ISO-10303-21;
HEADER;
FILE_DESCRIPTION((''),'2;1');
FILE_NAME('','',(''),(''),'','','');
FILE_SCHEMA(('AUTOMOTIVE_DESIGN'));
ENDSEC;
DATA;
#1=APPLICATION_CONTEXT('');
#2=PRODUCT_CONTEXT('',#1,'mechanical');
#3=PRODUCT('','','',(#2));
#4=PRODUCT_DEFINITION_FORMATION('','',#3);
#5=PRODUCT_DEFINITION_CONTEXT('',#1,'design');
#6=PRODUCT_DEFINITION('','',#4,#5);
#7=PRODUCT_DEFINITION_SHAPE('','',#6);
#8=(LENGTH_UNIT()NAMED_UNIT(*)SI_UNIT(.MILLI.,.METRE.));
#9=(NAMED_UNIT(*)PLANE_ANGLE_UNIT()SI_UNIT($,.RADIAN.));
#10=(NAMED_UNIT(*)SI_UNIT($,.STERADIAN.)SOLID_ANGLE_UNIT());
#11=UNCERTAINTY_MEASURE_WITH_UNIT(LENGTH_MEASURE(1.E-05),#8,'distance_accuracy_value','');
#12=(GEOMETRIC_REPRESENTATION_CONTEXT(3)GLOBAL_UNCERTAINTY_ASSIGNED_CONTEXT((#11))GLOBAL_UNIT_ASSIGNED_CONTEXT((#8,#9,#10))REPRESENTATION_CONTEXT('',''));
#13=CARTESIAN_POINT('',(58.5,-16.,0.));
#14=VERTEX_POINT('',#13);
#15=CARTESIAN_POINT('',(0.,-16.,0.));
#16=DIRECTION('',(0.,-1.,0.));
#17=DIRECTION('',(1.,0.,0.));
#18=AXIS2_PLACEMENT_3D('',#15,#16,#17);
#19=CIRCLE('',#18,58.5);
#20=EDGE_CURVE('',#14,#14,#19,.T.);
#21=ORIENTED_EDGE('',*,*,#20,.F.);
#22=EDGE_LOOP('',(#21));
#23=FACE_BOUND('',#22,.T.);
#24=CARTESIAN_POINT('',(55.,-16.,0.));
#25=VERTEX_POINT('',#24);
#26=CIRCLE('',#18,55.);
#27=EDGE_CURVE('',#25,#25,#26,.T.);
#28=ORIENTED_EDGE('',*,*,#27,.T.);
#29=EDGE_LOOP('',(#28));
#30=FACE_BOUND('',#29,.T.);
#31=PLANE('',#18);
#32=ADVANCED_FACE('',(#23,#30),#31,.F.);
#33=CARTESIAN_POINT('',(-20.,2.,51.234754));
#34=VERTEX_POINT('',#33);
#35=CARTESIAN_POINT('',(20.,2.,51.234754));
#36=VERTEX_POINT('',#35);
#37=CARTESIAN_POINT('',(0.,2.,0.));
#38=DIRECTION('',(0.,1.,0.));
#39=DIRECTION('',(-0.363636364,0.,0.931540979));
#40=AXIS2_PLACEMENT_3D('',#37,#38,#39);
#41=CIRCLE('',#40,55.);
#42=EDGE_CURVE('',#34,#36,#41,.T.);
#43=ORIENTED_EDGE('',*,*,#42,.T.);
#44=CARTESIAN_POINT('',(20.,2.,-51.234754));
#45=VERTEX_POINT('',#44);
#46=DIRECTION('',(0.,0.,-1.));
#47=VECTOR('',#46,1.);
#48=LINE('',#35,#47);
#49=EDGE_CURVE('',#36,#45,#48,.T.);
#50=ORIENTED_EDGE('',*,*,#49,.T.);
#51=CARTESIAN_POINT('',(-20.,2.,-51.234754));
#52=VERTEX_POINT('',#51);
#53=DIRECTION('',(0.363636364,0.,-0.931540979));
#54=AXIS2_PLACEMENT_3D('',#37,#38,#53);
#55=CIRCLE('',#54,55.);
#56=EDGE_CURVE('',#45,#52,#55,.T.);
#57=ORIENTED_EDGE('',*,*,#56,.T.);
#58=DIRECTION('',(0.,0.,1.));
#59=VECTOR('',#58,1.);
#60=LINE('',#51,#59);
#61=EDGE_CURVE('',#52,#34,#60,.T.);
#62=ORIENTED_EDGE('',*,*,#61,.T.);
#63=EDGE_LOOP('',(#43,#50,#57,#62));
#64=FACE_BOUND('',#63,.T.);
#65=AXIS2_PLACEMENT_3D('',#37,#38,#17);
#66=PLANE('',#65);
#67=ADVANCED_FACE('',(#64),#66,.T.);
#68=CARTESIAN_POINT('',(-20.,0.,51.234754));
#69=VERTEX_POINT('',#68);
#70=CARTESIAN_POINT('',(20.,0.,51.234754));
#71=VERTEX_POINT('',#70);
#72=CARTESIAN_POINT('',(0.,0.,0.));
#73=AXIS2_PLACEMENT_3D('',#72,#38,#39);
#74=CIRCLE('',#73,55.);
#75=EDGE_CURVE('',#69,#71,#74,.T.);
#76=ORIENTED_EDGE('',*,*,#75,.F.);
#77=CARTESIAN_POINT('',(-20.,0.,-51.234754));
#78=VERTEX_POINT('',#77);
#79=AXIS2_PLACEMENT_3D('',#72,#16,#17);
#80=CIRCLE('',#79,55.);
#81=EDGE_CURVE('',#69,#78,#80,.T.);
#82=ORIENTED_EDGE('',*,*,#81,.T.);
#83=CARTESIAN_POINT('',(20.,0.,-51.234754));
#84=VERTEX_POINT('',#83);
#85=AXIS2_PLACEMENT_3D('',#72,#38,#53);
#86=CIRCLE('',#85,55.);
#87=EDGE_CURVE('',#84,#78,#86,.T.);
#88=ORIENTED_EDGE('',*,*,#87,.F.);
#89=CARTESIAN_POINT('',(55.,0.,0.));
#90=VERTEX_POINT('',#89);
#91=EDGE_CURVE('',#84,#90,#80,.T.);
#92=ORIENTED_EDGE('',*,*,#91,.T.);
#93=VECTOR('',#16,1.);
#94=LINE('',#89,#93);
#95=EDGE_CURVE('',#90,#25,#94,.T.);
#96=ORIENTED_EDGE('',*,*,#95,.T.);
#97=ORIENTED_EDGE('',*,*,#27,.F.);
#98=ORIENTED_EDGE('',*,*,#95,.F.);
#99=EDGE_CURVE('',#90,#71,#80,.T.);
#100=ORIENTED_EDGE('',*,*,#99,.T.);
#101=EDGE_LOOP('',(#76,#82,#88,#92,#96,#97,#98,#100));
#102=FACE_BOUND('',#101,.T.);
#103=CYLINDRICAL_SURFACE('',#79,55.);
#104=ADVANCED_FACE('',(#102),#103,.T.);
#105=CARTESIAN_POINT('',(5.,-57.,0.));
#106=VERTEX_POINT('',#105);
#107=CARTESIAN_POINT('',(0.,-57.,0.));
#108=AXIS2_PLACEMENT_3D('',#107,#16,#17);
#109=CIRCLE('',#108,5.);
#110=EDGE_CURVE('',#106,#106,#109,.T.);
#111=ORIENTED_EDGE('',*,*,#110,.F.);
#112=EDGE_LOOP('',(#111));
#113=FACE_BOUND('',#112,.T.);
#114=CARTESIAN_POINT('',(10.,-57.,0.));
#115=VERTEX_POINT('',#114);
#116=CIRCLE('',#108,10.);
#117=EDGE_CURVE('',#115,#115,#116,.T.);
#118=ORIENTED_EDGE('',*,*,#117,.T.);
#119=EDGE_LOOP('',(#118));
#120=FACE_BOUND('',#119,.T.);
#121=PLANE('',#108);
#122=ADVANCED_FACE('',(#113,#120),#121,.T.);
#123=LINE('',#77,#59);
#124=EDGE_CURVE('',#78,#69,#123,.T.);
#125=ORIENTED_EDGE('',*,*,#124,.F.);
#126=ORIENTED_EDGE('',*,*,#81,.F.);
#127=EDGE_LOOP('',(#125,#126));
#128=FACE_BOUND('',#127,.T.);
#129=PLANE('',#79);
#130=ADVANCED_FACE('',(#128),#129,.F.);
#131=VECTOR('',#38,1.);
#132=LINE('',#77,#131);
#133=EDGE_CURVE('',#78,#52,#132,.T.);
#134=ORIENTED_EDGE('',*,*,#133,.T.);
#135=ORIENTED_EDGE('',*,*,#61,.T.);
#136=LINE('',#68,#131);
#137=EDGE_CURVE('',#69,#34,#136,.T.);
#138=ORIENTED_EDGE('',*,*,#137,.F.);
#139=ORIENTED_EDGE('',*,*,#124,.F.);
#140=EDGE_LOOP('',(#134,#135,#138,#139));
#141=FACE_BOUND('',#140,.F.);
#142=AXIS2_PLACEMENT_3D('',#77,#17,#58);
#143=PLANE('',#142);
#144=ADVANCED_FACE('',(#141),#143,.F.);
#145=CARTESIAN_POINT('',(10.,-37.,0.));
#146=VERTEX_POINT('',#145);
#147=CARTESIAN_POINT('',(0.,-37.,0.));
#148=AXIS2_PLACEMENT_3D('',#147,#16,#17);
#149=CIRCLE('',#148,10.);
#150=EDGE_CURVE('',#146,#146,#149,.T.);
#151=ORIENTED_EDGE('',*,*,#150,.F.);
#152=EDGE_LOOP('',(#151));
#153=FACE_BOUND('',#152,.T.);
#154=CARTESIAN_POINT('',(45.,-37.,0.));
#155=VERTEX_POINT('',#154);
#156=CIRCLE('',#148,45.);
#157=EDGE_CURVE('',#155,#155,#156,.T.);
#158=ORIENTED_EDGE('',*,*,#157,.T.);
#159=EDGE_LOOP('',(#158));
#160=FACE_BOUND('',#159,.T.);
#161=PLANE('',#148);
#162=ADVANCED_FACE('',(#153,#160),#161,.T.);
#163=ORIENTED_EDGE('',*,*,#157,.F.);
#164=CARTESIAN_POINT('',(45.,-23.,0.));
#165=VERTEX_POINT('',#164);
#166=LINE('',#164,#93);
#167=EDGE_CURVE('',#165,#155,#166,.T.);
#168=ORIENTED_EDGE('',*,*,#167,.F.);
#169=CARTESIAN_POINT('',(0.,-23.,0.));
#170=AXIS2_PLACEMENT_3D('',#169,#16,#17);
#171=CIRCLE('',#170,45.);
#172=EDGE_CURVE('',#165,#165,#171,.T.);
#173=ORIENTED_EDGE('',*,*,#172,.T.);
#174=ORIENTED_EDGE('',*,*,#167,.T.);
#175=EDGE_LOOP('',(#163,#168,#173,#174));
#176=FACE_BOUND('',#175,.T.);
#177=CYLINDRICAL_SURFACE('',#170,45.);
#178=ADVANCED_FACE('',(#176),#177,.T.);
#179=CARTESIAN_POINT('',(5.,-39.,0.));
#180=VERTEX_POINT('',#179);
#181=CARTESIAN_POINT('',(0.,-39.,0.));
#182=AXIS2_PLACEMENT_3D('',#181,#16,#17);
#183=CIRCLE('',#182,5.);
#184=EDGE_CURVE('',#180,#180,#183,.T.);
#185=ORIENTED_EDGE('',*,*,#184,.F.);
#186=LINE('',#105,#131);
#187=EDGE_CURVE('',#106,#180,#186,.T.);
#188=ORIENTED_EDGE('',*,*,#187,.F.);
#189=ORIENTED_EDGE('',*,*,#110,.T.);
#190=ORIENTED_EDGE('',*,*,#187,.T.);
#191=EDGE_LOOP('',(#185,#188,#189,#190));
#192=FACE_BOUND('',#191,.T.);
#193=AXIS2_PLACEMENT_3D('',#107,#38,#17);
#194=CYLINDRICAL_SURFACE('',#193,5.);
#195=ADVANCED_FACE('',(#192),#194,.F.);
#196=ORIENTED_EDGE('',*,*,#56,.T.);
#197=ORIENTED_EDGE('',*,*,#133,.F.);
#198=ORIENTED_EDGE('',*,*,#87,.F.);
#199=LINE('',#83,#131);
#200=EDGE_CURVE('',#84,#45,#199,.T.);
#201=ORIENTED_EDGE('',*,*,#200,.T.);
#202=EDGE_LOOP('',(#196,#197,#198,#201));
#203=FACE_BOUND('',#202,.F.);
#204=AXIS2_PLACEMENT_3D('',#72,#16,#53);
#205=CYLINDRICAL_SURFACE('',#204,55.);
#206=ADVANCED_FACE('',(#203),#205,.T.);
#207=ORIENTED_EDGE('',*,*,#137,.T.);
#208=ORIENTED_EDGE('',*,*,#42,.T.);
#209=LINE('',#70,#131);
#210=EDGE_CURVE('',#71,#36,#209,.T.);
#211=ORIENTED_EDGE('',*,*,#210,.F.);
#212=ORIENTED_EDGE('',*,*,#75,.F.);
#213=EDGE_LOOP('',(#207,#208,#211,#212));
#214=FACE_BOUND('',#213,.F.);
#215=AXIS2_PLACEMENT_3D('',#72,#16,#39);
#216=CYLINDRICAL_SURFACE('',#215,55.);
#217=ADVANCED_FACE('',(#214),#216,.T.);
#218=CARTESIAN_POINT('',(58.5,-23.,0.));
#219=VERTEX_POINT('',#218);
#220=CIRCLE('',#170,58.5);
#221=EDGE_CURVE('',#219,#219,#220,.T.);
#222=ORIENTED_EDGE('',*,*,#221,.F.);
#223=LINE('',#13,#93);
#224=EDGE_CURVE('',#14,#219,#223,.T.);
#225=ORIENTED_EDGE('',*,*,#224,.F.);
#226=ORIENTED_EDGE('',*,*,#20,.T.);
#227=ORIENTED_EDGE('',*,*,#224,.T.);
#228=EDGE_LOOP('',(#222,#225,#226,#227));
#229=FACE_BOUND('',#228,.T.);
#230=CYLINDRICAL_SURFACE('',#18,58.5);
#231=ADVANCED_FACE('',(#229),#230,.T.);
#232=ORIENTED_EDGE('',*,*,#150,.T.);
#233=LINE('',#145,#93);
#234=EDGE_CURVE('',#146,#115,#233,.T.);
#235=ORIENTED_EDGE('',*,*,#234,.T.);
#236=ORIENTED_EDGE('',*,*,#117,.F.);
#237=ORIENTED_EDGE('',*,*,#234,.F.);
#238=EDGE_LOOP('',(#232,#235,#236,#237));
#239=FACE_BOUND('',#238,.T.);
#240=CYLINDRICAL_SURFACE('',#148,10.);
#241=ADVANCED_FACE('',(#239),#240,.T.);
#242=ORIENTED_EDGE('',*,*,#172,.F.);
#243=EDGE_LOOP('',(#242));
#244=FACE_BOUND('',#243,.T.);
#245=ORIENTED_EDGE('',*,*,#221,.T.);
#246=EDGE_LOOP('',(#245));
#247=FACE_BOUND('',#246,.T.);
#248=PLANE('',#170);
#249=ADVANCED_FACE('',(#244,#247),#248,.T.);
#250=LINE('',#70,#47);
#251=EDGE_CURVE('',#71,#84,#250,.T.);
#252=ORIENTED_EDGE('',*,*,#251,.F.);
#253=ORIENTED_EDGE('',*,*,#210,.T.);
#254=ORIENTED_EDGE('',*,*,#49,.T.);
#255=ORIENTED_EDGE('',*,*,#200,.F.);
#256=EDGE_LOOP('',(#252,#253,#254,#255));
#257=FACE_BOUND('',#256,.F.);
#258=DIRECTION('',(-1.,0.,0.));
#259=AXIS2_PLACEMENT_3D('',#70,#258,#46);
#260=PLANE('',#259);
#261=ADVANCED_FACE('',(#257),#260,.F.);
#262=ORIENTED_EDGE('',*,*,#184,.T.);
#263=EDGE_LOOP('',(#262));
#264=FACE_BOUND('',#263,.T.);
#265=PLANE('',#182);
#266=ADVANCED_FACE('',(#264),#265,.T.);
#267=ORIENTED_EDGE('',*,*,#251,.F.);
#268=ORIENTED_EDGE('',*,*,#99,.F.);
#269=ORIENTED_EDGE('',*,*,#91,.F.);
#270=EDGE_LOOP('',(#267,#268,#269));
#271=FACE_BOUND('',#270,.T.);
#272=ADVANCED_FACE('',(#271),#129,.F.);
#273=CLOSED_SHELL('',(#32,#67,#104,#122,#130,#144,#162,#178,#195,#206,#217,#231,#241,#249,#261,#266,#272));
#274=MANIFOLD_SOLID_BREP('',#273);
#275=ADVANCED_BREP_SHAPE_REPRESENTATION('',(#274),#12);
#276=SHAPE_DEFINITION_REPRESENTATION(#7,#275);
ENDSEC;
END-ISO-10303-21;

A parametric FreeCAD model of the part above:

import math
import FreeCAD as App
import Part
import Sketcher

V = App.Vector
Q = App.Units.Quantity


def add_polygon(sketch, points):
    """Adds a closed chain of lines whose ends are joined by coincident constraints."""
    first, n = sketch.GeometryCount, len(points)
    for a, b in zip(points, points[1:] + points[:1]):
        sketch.addGeometry(Part.LineSegment(App.Vector(*a, 0), App.Vector(*b, 0)), False)
    for i in range(n):
        sketch.addConstraint(Sketcher.Constraint("Coincident", first + i, 2, first + (i + 1) % n, 1))

doc = App.newDocument("Part")
body = doc.addObject("PartDesign::Body", "Body")

# Sketch on XY plane
sketch1 = body.newObject("Sketcher::SketchObject", "Sketch")
sketch1.AttachmentSupport = (doc.getObject("XY_Plane"), [""])
sketch1.MapMode = "FlatFace"
add_polygon(sketch1, [(55, 0), (0, 0), (0, -39), (5, -39), (5, -57), (10, -57), (10, -37), (45, -37), (45, -23), (58.5, -23), (58.5, -16), (55, -16)])  # lines 0-11
sketch1.addConstraint([
    Sketcher.Constraint("Horizontal", 0),
    Sketcher.Constraint("Vertical", 1),
    Sketcher.Constraint("Horizontal", 2),
    Sketcher.Constraint("Vertical", 3),
    Sketcher.Constraint("Horizontal", 4),
    Sketcher.Constraint("Vertical", 5),
    Sketcher.Constraint("Horizontal", 6),
    Sketcher.Constraint("Vertical", 7),
    Sketcher.Constraint("Horizontal", 8),
    Sketcher.Constraint("Vertical", 9),
    Sketcher.Constraint("Horizontal", 10),
    Sketcher.Constraint("Vertical", 11),
    Sketcher.Constraint("Coincident", 0, 2, -1, 1),
    Sketcher.Constraint("Equal", 2, 4),
    Sketcher.Constraint("DistanceX", 0, 2, 0, 1, Q("55 mm")),
    Sketcher.Constraint("DistanceX", 2, 1, 2, 2, Q("5 mm")),
    Sketcher.Constraint("DistanceX", 6, 1, 6, 2, Q("35 mm")),
    Sketcher.Constraint("DistanceY", 1, 2, 1, 1, Q("39 mm")),
    Sketcher.Constraint("DistanceY", 3, 2, 3, 1, Q("18 mm")),
    Sketcher.Constraint("DistanceY", 5, 1, 5, 2, Q("20 mm")),
    Sketcher.Constraint("DistanceY", 7, 1, 7, 2, Q("14 mm")),
    Sketcher.Constraint("DistanceY", 9, 1, 9, 2, Q("7 mm")),
    Sketcher.Constraint("DistanceX", 8, 1, 8, 2, Q("13.5 mm")),
])
revolution = body.newObject("PartDesign::Revolution", "Revolution")
revolution.Profile = sketch1
revolution.ReferenceAxis = (sketch1, ["V_Axis"])
revolution.Angle = 360

# Sketch on XZ plane
sketch2 = body.newObject("Sketcher::SketchObject", "Sketch001")
sketch2.AttachmentSupport = (doc.getObject("XZ_Plane"), [""])
sketch2.MapMode = "FlatFace"
sketch2.addGeometry([
    Part.LineSegment(V(-20, -51, 0), V(-20, 51, 0)),
    Part.ArcOfCircle(Part.Circle(V(0, 0, 0), V(0, 0, 1), 55), math.radians(69), math.radians(111)),
    Part.LineSegment(V(20, 51, 0), V(20, -51, 0)),
    Part.ArcOfCircle(Part.Circle(V(0, 0, 0), V(0, 0, 1), 55), math.radians(-111), math.radians(-69)),
], False)
sketch2.addConstraint([
    Sketcher.Constraint("Coincident", 0, 2, 1, 2),
    Sketcher.Constraint("Coincident", 1, 1, 2, 1),
    Sketcher.Constraint("Coincident", 2, 2, 3, 2),
    Sketcher.Constraint("Coincident", 3, 1, 0, 1),
    Sketcher.Constraint("Vertical", 0),
    Sketcher.Constraint("Vertical", 2),
    Sketcher.Constraint("Coincident", 1, 3, -1, 1),
    Sketcher.Constraint("Coincident", 3, 3, -1, 1),
    Sketcher.Constraint("Equal", 1, 3),
    Sketcher.Constraint("Horizontal", 0, 2, 1, 1),
    Sketcher.Constraint("Radius", 1, Q("55 mm")),
    Sketcher.Constraint("DistanceX", 0, 2, -1, 1, Q("20 mm")),
])
pad1 = body.newObject("PartDesign::Pad", "Pad")
pad1.Profile = sketch2
pad1.Length = 2
pad1.Reversed = True

doc.recompute()
